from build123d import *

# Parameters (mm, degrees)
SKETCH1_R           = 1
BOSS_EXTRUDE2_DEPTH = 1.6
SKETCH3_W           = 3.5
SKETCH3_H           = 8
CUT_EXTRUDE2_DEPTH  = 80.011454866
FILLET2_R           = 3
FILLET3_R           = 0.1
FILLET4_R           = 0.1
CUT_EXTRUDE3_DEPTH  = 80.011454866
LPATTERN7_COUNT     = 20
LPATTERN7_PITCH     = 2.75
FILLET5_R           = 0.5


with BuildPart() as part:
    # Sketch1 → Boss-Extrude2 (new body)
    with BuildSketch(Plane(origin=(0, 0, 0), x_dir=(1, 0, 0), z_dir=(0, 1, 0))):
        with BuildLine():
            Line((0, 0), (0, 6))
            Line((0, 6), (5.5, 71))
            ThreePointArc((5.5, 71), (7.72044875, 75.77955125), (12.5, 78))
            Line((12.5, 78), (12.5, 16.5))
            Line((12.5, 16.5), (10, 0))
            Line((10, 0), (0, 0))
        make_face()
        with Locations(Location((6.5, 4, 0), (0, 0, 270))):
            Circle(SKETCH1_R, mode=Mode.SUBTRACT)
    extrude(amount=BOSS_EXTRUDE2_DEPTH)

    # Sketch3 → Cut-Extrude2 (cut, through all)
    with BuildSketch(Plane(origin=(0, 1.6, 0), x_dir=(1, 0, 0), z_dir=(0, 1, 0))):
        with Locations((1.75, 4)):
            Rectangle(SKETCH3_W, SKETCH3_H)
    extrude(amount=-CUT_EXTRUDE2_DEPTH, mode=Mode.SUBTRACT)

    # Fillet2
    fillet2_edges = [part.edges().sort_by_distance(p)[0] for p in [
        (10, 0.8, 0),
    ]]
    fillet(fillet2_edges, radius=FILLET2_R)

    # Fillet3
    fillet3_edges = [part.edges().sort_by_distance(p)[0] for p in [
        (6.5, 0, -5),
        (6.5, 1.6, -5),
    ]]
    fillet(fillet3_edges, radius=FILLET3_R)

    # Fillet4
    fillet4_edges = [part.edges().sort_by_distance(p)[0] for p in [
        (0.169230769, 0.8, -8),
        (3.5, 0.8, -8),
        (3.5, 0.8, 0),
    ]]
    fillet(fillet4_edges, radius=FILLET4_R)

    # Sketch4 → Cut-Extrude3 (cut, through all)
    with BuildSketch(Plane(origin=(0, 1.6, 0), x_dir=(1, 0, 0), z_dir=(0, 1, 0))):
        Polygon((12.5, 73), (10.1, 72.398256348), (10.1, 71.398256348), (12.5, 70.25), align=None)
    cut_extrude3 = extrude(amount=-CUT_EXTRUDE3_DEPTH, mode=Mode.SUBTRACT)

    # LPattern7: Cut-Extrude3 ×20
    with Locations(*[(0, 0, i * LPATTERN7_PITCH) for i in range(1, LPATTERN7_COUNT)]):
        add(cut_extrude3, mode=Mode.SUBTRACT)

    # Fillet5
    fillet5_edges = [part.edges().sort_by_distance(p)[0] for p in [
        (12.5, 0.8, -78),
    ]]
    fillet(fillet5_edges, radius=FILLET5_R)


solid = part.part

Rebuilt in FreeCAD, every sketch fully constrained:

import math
import FreeCAD as App
import Part
import Sketcher
from FreeCAD import Vector
Q = App.Units.Quantity


def edges_at(feature, points):
    """Names of the edges that pass closest to the given points."""
    edges = feature.Shape.Edges
    near = lambda p: min(range(len(edges)), key=lambda i: edges[i].distToShape(Part.Vertex(*p))[0])
    return sorted({f"Edge{near(p) + 1}" for p in points})

doc = App.newDocument("Part")
body = doc.addObject("PartDesign::Body", "Body")

# Sketch on XZ plane
sketch1 = body.newObject("Sketcher::SketchObject", "Sketch")
sketch1.AttachmentSupport = (doc.getObject("XZ_Plane"), [""])
sketch1.MapMode = "FlatFace"
sketch1.addGeometry(Part.LineSegment(Vector(0, -6, 0), Vector(0, 0, 0)), False)
sketch1.addGeometry(Part.LineSegment(Vector(0, 0, 0), Vector(10, 0, 0)), False)
sketch1.addGeometry(Part.LineSegment(Vector(10, 0, 0), Vector(12.5, -16.5, 0)), False)
sketch1.addGeometry(Part.LineSegment(Vector(12.5, -16.5, 0), Vector(12.5, -78, 0)), False)
sketch1.addGeometry(Part.ArcOfCircle(Part.Circle(Vector(13.1, -70.4, 0), Vector(0, 0, 1), 7.7), math.radians(-175), math.radians(-95)), False)
sketch1.addGeometry(Part.LineSegment(Vector(5.5, -71, 0), Vector(0, -6, 0)), False)
sketch1.addGeometry(Part.Circle(Vector(6.5, -4, 0), Vector(0, 0, 1), 1), False)
sketch1.addConstraint(Sketcher.Constraint("Coincident", 0, 2, 1, 1))
sketch1.addConstraint(Sketcher.Constraint("Coincident", 1, 2, 2, 1))
sketch1.addConstraint(Sketcher.Constraint("Coincident", 2, 2, 3, 1))
sketch1.addConstraint(Sketcher.Constraint("Coincident", 3, 2, 4, 2))
sketch1.addConstraint(Sketcher.Constraint("Tangent", 4, 1, 5, 1))
sketch1.addConstraint(Sketcher.Constraint("Coincident", 5, 2, 0, 1))
sketch1.addConstraint(Sketcher.Constraint("Vertical", 0))
sketch1.addConstraint(Sketcher.Constraint("Horizontal", 1))
sketch1.addConstraint(Sketcher.Constraint("Vertical", 3))
sketch1.addConstraint(Sketcher.Constraint("Coincident", 0, 2, -1, 1))
sketch1.addConstraint(Sketcher.Constraint("Diameter", 6, Q("2 mm")))
sketch1.addConstraint(Sketcher.Constraint("DistanceX", 1, 1, 1, 2, Q("10 mm")))
sketch1.addConstraint(Sketcher.Constraint("DistanceY", 0, 1, 0, 2, Q("6 mm")))
sketch1.addConstraint(Sketcher.Constraint("DistanceY", 3, 2, 3, 1, Q("61.5 mm")))
sketch1.addConstraint(Sketcher.Constraint("DistanceY", 6, 3, -1, 1, Q("4 mm")))
sketch1.addConstraint(Sketcher.Constraint("DistanceY", 3, 2, -1, 1, Q("78 mm")))
sketch1.addConstraint(Sketcher.Constraint("DistanceY", 4, 1, -1, 1, Q("71 mm")))
sketch1.addConstraint(Sketcher.Constraint("DistanceX", 6, 3, 2, 2, Q("6 mm")))
sketch1.addConstraint(Sketcher.Constraint("DistanceX", 4, 1, 3, 2, Q("7 mm")))
sketch1.addConstraint(Sketcher.Constraint("DistanceX", -1, 1, 6, 3, Q("6.5 mm")))
pad1 = body.newObject("PartDesign::Pad", "Pad")
pad1.Profile = sketch1
pad1.Length = 1.6
pad1.Reversed = True

# Sketch on XZ plane
sketch2 = body.newObject("Sketcher::SketchObject", "Sketch001")
sketch2.AttachmentSupport = (doc.getObject("XZ_Plane"), [""])
sketch2.MapMode = "FlatFace"
sketch2.AttachmentOffset = App.Placement(Vector(0, 0, -1.6), App.Rotation())
sketch2.addGeometry(Part.LineSegment(Vector(0, -8, 0), Vector(0, 0, 0)), False)
sketch2.addGeometry(Part.LineSegment(Vector(0, 0, 0), Vector(3.5, 0, 0)), False)
sketch2.addGeometry(Part.LineSegment(Vector(3.5, 0, 0), Vector(3.5, -8, 0)), False)
sketch2.addGeometry(Part.LineSegment(Vector(3.5, -8, 0), Vector(0, -8, 0)), False)
sketch2.addConstraint(Sketcher.Constraint("Coincident", 0, 2, 1, 1))
sketch2.addConstraint(Sketcher.Constraint("Coincident", 1, 2, 2, 1))
sketch2.addConstraint(Sketcher.Constraint("Coincident", 2, 2, 3, 1))
sketch2.addConstraint(Sketcher.Constraint("Coincident", 3, 2, 0, 1))
sketch2.addConstraint(Sketcher.Constraint("Vertical", 0))
sketch2.addConstraint(Sketcher.Constraint("Horizontal", 1))
sketch2.addConstraint(Sketcher.Constraint("Vertical", 2))
sketch2.addConstraint(Sketcher.Constraint("Horizontal", 3))
sketch2.addConstraint(Sketcher.Constraint("Coincident", 0, 2, -1, 1))
sketch2.addConstraint(Sketcher.Constraint("DistanceY", 0, 1, 0, 2, Q("8 mm")))
sketch2.addConstraint(Sketcher.Constraint("DistanceX", 1, 1, 1, 2, Q("3.5 mm")))
pocket1 = body.newObject("PartDesign::Pocket", "Pocket")
pocket1.Profile = sketch2
pocket1.Type = "ThroughAll"
pocket1.Reversed = True
doc.recompute()

fillet = body.newObject("PartDesign::Fillet", "Fillet")
fillet.Base = (pocket1, edges_at(pocket1, [(10, 0.8, 0)]))
fillet.Radius = 3
doc.recompute()

fillet2 = body.newObject("PartDesign::Fillet", "Fillet001")
fillet2.Base = (fillet, edges_at(fillet, [(6.5, 0, -5), (6.5, 1.6, -5)]))
fillet2.Radius = 0.1
doc.recompute()

fillet3 = body.newObject("PartDesign::Fillet", "Fillet002")
fillet3.Base = (fillet2, edges_at(fillet2, [(0.169, 0.8, -8), (3.5, 0.8, -8), (3.5, 0.8, 0)]))
fillet3.Radius = 0.1

# Sketch on XZ plane
sketch3 = body.newObject("Sketcher::SketchObject", "Sketch002")
sketch3.AttachmentSupport = (doc.getObject("XZ_Plane"), [""])
sketch3.MapMode = "FlatFace"
sketch3.AttachmentOffset = App.Placement(Vector(0, 0, -1.6), App.Rotation())
sketch3.addGeometry(Part.LineSegment(Vector(12.5, -73, 0), Vector(10.1, -72.4, 0)), False)
sketch3.addGeometry(Part.LineSegment(Vector(10.1, -72.4, 0), Vector(10.1, -71.4, 0)), False)
sketch3.addGeometry(Part.LineSegment(Vector(10.1, -71.4, 0), Vector(12.5, -70.2, 0)), False)
sketch3.addGeometry(Part.LineSegment(Vector(12.5, -70.2, 0), Vector(12.5, -73, 0)), False)
sketch3.addConstraint(Sketcher.Constraint("Coincident", 0, 2, 1, 1))
sketch3.addConstraint(Sketcher.Constraint("Coincident", 1, 2, 2, 1))
sketch3.addConstraint(Sketcher.Constraint("Coincident", 2, 2, 3, 1))
sketch3.addConstraint(Sketcher.Constraint("Coincident", 3, 2, 0, 1))
sketch3.addConstraint(Sketcher.Constraint("Vertical", 1))
sketch3.addConstraint(Sketcher.Constraint("Vertical", 3))
sketch3.addConstraint(Sketcher.Constraint("DistanceY", 1, 1, 1, 2, Q("1 mm")))
sketch3.addConstraint(Sketcher.Constraint("DistanceY", 3, 2, -1, 1, Q("73 mm")))
sketch3.addConstraint(Sketcher.Constraint("DistanceY", 3, 2, 3, 1, Q("2.75 mm")))
sketch3.addConstraint(Sketcher.Constraint("DistanceX", -1, 1, 0, 2, Q("10.1 mm")))
sketch3.addConstraint(Sketcher.Constraint("DistanceX", -1, 1, 2, 2, Q("12.5 mm")))
sketch3.addConstraint(Sketcher.Constraint("Distance", 0, Q("2.474287 mm")))
pocket2 = body.newObject("PartDesign::Pocket", "Pocket001")
pocket2.Profile = sketch3
pocket2.Type = "ThroughAll"
pocket2.Reversed = True
doc.recompute()

linearpattern = body.newObject("PartDesign::LinearPattern", "LinearPattern")
linearpattern.Originals = [pocket2]
linearpattern.Direction = (doc.getObject("Z_Axis"), [""])
linearpattern.Mode = "offset"
linearpattern.Offset = 2.75
linearpattern.Occurrences = 20
body.Tip = linearpattern
doc.recompute()

fillet4 = body.newObject("PartDesign::Fillet", "Fillet003")
fillet4.Base = (linearpattern, edges_at(linearpattern, [(12.5, 0.8, -78)]))
fillet4.Radius = 0.5

doc.recompute()
